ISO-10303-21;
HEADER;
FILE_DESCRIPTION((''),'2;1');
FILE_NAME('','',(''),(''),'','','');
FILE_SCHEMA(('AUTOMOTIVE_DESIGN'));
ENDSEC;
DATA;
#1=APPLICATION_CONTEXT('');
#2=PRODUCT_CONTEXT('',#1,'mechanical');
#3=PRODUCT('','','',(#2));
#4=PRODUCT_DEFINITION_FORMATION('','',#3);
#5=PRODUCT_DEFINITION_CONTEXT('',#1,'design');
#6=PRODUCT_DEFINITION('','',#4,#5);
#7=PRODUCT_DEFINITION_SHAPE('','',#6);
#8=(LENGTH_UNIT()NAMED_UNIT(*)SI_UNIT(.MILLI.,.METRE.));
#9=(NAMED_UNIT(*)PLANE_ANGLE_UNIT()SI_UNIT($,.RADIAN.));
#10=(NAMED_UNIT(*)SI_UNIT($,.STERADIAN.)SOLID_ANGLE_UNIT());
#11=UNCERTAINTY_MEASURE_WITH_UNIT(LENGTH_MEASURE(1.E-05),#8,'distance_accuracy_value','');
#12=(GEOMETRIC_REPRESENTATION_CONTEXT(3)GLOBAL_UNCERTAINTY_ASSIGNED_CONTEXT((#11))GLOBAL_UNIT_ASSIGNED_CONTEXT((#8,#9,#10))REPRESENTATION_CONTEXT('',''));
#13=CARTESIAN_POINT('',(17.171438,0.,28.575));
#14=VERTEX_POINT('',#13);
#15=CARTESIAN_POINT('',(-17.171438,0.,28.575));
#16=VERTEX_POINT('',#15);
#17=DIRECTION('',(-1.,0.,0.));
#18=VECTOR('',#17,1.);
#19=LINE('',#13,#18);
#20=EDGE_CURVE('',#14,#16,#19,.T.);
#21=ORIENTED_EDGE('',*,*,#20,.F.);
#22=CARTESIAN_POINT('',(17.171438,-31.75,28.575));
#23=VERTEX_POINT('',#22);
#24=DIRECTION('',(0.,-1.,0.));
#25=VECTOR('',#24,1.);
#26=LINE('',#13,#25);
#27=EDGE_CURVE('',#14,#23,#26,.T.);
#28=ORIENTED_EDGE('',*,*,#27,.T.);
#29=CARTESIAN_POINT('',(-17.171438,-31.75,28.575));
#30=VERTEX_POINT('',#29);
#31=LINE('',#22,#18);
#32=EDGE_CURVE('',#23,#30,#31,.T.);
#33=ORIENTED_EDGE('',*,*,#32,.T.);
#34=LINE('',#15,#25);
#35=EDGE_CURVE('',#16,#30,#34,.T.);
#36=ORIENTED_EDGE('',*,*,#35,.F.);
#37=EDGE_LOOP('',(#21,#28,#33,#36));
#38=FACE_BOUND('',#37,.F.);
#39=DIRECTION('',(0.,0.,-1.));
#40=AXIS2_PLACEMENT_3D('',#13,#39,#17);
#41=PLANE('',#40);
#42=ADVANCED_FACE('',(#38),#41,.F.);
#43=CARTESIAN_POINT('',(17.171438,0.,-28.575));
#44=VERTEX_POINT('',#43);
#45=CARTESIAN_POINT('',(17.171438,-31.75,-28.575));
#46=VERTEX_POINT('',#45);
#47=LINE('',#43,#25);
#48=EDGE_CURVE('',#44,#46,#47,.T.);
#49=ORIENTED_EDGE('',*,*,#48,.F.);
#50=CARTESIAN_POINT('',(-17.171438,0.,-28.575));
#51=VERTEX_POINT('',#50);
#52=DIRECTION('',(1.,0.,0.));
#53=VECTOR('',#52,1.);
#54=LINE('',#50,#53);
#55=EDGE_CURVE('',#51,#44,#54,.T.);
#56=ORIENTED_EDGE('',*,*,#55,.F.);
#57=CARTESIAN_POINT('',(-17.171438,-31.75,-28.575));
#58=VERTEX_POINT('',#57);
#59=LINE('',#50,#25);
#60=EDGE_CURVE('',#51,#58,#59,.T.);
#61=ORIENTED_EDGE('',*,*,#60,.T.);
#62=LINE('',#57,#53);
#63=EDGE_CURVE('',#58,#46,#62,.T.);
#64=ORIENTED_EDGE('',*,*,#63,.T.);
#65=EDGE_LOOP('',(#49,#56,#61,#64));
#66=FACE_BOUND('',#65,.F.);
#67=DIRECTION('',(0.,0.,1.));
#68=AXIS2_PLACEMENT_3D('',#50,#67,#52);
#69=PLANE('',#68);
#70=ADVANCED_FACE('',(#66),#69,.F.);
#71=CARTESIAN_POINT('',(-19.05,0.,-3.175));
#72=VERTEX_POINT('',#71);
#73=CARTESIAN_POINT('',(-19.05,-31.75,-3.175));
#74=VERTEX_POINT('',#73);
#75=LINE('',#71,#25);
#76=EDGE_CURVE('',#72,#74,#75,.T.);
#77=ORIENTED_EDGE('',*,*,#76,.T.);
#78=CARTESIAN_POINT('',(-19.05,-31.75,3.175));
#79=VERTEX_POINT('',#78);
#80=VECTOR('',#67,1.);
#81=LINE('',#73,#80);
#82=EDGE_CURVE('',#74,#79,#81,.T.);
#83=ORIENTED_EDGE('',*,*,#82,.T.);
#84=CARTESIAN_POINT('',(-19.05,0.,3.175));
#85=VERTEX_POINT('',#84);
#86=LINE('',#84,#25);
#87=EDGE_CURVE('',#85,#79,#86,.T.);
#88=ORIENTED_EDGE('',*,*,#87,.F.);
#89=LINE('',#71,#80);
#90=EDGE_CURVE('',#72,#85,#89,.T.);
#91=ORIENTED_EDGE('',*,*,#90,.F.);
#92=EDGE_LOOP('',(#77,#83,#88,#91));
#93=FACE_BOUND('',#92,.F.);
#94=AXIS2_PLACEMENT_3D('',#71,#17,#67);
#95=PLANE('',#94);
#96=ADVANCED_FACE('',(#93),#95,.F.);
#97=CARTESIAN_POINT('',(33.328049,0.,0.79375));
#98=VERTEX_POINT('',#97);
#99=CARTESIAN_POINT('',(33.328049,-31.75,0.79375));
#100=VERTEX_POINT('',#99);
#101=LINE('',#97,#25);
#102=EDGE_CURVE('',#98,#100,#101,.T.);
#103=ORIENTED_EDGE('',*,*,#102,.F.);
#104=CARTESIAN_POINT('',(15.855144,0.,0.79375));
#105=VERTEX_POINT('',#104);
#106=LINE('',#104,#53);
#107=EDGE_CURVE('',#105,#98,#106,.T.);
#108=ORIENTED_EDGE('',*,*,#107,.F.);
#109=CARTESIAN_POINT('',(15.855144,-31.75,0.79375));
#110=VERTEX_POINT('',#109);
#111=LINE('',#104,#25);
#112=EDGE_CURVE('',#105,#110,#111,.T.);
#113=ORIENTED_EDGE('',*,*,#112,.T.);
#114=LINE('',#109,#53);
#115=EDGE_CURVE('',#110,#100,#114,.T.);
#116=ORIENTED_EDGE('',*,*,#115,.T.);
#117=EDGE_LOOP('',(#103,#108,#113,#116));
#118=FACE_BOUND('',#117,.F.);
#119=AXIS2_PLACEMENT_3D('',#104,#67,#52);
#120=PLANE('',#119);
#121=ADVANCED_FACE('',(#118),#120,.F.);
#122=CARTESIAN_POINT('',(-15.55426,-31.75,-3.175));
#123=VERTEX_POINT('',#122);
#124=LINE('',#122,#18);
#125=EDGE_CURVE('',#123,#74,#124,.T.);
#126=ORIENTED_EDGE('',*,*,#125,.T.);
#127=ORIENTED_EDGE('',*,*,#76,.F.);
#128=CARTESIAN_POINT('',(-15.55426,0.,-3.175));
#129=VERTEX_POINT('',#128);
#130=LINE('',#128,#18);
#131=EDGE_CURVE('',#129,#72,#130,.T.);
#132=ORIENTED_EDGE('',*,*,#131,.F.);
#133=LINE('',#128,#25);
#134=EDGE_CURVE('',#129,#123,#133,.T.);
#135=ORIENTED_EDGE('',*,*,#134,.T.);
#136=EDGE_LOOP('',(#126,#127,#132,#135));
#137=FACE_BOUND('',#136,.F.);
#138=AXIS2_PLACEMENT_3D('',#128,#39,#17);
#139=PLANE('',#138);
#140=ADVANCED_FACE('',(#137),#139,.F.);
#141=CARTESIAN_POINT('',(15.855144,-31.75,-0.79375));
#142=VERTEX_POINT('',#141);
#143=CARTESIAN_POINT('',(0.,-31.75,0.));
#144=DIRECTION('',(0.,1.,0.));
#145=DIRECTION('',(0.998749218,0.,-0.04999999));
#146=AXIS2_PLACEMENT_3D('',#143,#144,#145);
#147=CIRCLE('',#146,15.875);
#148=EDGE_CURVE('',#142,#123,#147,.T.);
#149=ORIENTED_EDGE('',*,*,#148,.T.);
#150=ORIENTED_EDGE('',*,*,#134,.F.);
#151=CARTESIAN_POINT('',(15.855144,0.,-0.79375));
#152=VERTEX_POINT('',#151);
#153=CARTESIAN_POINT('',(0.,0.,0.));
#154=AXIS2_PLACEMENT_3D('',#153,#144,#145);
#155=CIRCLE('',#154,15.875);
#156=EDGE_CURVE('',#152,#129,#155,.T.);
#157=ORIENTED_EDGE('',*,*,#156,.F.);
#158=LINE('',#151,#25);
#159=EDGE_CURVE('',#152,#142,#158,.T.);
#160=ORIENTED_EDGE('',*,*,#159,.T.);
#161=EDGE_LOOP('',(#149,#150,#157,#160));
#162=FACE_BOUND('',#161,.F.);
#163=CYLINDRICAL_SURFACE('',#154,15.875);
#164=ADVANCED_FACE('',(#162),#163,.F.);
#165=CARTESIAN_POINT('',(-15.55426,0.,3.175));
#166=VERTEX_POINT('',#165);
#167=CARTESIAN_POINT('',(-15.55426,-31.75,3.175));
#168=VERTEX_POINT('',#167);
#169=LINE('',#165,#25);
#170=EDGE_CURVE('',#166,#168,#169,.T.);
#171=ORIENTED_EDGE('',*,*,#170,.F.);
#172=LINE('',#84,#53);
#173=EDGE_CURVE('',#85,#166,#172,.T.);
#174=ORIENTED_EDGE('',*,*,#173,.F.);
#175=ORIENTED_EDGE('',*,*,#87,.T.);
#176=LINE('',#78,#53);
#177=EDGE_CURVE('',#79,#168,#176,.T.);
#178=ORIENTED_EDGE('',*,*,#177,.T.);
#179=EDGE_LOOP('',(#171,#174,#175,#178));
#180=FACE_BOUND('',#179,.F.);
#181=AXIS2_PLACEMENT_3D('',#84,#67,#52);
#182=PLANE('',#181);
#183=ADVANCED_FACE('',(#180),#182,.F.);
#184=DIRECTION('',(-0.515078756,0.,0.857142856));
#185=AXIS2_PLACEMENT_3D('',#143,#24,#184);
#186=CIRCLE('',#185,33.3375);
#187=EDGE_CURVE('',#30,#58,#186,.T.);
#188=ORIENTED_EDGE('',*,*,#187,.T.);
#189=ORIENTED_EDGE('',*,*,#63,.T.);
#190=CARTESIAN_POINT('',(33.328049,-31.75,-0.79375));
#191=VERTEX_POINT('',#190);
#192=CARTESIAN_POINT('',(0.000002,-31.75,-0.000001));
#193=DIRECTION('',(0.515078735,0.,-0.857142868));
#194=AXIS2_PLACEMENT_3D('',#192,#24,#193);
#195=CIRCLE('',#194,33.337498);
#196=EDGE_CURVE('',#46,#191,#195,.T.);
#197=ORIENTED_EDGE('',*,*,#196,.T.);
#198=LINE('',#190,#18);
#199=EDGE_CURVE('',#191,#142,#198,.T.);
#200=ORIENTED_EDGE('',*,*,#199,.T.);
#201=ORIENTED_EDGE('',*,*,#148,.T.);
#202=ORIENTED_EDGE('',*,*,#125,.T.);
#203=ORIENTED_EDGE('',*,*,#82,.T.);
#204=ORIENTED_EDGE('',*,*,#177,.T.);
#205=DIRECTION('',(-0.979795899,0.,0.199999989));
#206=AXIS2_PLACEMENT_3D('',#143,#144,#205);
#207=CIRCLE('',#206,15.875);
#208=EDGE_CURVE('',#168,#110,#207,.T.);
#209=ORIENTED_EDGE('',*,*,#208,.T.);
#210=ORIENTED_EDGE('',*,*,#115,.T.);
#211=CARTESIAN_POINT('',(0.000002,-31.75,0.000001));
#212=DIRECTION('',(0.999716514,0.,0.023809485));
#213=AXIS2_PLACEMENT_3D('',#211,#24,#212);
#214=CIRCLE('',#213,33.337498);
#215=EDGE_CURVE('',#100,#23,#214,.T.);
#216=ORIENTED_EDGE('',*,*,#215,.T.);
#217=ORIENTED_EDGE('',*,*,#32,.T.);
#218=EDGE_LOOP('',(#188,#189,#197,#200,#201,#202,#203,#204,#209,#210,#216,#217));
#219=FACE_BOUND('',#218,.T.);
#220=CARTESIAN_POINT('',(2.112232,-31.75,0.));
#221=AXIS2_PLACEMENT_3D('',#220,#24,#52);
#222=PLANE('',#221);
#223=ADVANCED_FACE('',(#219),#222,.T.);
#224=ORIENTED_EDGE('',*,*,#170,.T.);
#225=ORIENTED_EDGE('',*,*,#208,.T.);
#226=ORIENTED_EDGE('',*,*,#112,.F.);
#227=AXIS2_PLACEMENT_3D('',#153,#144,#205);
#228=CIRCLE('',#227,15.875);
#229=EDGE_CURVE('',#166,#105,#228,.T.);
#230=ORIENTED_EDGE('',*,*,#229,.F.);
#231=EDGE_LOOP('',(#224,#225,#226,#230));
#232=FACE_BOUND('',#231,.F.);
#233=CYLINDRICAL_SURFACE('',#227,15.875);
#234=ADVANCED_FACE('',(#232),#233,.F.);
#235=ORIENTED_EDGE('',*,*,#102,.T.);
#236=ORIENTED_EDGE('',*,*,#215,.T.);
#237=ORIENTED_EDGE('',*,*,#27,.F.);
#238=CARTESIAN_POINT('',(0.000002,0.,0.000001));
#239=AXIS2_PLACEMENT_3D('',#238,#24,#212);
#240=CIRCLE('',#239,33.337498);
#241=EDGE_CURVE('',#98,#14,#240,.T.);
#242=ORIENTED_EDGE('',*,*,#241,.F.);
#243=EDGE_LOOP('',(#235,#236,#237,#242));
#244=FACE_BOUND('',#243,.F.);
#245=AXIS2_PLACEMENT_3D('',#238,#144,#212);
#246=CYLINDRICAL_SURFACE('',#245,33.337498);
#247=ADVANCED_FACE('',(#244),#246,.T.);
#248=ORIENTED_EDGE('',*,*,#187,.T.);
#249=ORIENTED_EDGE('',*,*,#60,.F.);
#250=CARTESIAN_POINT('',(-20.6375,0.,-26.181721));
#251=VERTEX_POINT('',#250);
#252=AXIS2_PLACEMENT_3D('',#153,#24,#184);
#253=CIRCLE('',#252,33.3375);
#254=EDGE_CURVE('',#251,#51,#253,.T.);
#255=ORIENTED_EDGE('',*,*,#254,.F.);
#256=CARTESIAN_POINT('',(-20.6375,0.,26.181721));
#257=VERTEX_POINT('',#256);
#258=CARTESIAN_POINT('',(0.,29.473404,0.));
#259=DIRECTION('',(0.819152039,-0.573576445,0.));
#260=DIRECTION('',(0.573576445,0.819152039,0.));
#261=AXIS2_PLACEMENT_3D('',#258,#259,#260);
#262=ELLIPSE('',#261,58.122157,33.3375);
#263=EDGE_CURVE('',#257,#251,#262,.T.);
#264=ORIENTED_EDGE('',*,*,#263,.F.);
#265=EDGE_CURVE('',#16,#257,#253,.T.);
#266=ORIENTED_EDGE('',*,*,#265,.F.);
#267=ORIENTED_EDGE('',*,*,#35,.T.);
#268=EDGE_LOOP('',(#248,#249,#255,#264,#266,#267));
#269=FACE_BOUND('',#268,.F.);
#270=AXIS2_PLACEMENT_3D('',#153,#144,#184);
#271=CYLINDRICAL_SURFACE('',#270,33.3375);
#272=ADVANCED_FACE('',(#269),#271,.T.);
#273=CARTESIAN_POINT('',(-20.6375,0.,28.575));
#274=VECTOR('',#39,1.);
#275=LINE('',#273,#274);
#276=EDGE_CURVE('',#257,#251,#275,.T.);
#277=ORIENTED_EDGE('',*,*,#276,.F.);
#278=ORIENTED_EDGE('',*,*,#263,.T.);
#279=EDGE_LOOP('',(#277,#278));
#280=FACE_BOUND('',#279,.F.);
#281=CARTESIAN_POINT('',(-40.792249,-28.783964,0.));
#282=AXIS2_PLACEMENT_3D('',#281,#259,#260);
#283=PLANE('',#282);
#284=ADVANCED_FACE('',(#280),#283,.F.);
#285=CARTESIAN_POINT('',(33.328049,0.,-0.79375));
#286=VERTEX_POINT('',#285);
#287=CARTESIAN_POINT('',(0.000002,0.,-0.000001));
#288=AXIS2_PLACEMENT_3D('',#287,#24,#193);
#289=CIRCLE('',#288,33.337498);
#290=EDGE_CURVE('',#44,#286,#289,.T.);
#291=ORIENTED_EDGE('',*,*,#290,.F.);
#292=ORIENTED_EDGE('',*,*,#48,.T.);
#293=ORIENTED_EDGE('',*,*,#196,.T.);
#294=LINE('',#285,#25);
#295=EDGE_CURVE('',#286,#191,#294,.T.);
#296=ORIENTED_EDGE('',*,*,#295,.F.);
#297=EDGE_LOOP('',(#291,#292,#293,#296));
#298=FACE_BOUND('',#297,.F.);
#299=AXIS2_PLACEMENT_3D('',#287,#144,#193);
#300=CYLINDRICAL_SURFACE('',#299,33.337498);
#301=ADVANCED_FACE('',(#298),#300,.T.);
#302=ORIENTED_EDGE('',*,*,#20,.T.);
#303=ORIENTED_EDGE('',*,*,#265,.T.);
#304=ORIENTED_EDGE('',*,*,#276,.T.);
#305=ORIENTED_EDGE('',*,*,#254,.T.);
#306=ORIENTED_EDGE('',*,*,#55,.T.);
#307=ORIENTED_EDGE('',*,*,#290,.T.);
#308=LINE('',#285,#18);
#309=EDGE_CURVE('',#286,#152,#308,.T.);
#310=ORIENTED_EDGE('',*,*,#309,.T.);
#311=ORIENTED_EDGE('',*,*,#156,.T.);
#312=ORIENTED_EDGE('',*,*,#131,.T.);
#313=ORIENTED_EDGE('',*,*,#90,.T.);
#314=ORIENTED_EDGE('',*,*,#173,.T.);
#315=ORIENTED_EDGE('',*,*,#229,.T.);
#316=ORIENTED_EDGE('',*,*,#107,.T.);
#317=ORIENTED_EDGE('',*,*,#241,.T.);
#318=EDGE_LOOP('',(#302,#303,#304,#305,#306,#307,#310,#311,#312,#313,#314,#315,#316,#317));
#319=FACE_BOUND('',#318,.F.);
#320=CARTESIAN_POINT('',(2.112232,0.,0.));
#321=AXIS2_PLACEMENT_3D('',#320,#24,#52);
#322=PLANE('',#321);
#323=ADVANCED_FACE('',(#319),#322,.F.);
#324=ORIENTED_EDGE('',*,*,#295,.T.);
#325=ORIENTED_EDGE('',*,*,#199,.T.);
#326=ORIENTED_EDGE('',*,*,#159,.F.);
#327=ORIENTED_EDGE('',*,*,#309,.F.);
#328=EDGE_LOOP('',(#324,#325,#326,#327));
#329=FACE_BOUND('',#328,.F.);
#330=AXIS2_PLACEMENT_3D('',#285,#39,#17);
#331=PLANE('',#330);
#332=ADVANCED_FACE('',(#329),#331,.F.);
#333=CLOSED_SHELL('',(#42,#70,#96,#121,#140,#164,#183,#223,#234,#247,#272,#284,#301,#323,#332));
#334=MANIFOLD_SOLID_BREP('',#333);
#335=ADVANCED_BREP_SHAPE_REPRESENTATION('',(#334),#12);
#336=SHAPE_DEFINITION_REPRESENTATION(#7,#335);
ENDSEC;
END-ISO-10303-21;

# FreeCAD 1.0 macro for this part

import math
import FreeCAD as App
import Part
import Sketcher

V = App.Vector
Q = App.Units.Quantity

doc = App.newDocument("Part")
body = doc.addObject("PartDesign::Body", "Body")

sketch1 = body.newObject("Sketcher::SketchObject", "Sketch")
sketch1.AttachmentSupport = (doc.getObject("XZ_Plane"), [""])
sketch1.MapMode = "FlatFace"
sketch1.addGeometry([
    Part.LineSegment(V(15.9, 0.8, 0), V(33.3, 0.8, 0)),
    Part.ArcOfCircle(Part.Circle(V(0, 0, 0), V(0, 0, 1), 33.3), math.radians(1), math.radians(59)),
    Part.LineSegment(V(17.2, 28.6, 0), V(-17.2, 28.6, 0)),
    Part.ArcOfCircle(Part.Circle(V(0, 0, 0), V(0, 0, 1), 33.3), math.radians(121), math.radians(239)),
    Part.LineSegment(V(-17.2, -28.6, 0), V(17.2, -28.6, 0)),
    Part.ArcOfCircle(Part.Circle(V(0, 0, 0), V(0, 0, 1), 33.3), math.radians(-59), math.radians(-1)),
    Part.LineSegment(V(33.3, -0.8, 0), V(15.9, -0.8, 0)),
    Part.ArcOfCircle(Part.Circle(V(0, 0, 0), V(0, 0, 1), 15.9), math.radians(-168), math.radians(-3)),
    Part.LineSegment(V(-15.6, -3.2, 0), V(-19.1, -3.2, 0)),
    Part.LineSegment(V(-19.1, -3.2, 0), V(-19.1, 3.2, 0)),
    Part.LineSegment(V(-19.1, 3.2, 0), V(-15.6, 3.2, 0)),
    Part.ArcOfCircle(Part.Circle(V(0, 0, 0), V(0, 0, 1), 15.9), math.radians(3), math.radians(168)),
], False)
sketch1.addConstraint([
    Sketcher.Constraint("Coincident", 0, 2, 1, 1),
    Sketcher.Constraint("Coincident", 1, 2, 2, 1),
    Sketcher.Constraint("Coincident", 2, 2, 3, 1),
    Sketcher.Constraint("Coincident", 3, 2, 4, 1),
    Sketcher.Constraint("Coincident", 4, 2, 5, 1),
    Sketcher.Constraint("Coincident", 5, 2, 6, 1),
    Sketcher.Constraint("Coincident", 6, 2, 7, 2),
    Sketcher.Constraint("Coincident", 7, 1, 8, 1),
    Sketcher.Constraint("Coincident", 8, 2, 9, 1),
    Sketcher.Constraint("Coincident", 9, 2, 10, 1),
    Sketcher.Constraint("Coincident", 10, 2, 11, 2),
    Sketcher.Constraint("Coincident", 11, 1, 0, 1),
    Sketcher.Constraint("Horizontal", 0),
    Sketcher.Constraint("Horizontal", 2),
    Sketcher.Constraint("Horizontal", 4),
    Sketcher.Constraint("Horizontal", 6),
    Sketcher.Constraint("Horizontal", 8),
    Sketcher.Constraint("Vertical", 9),
    Sketcher.Constraint("Horizontal", 10),
    Sketcher.Constraint("Coincident", 1, 3, -1, 1),
    Sketcher.Constraint("Coincident", 3, 3, -1, 1),
    Sketcher.Constraint("Coincident", 5, 3, -1, 1),
    Sketcher.Constraint("Coincident", 7, 3, -1, 1),
    Sketcher.Constraint("Coincident", 11, 3, -1, 1),
    Sketcher.Constraint("Equal", 1, 5),
    Sketcher.Constraint("Equal", 7, 11),
    Sketcher.Constraint("Symmetric", 1, 2, 3, 2, -1, 1),
    Sketcher.Constraint("Vertical", 0, 2, 5, 2),
    Sketcher.Constraint("Vertical", 7, 1, 10, 2),
    Sketcher.Constraint("Radius", 1, Q("1.3124999 in")),
    Sketcher.Constraint("Radius", 7, Q("0.625 in")),
    Sketcher.Constraint("DistanceY", 9, 1, 9, 2, Q("0.25 in")),
    Sketcher.Constraint("DistanceX", 8, 2, -1, 1, Q("0.75 in")),
    Sketcher.Constraint("DistanceY", -1, 1, 0, 2, Q("0.03125 in")),
    Sketcher.Constraint("DistanceY", -1, 1, 1, 2, Q("1.125 in")),
])
pad1 = body.newObject("PartDesign::Pad", "Pad")
pad1.Profile = sketch1
pad1.Length = Q("1.25 in")

sketch2 = body.newObject("Sketcher::SketchObject", "Sketch001")
sketch2.AttachmentSupport = (doc.getObject("XY_Plane"), [""])
sketch2.MapMode = "FlatFace"
sketch2.addGeometry([
    Part.LineSegment(V(-20.6, 0, 0), V(-20.6, 6.5, 0)),
    Part.LineSegment(V(-20.6, 6.5, 0), V(-46.3, 6.5, 0)),
    Part.LineSegment(V(-46.3, 6.5, 0), V(-45.4, -28.8, 0)),
    Part.LineSegment(V(-45.4, -28.8, 0), V(-40.8, -28.8, 0)),
    Part.LineSegment(V(-40.8, -28.8, 0), V(-20.6, 0, 0)),
], False)
sketch2.addConstraint([
    Sketcher.Constraint("Coincident", 0, 2, 1, 1),
    Sketcher.Constraint("Coincident", 1, 2, 2, 1),
    Sketcher.Constraint("Coincident", 2, 2, 3, 1),
    Sketcher.Constraint("Coincident", 3, 2, 4, 1),
    Sketcher.Constraint("Coincident", 4, 2, 0, 1),
    Sketcher.Constraint("Vertical", 0),
    Sketcher.Constraint("Horizontal", 1),
    Sketcher.Constraint("Horizontal", 3),
    Sketcher.Constraint("PointOnObject", 4, 2, -1),
    Sketcher.Constraint("Angle", 4, Q("54.999999 deg")),
    Sketcher.Constraint("DistanceX", 0, 2, -1, 1, Q("0.8125 in")),
    Sketcher.Constraint("Distance", 2, 35.282),
    Sketcher.Constraint("DistanceX", 1, 2, 1, 1, 25.701274),
    Sketcher.Constraint("DistanceX", 3, 1, 3, 2, 4.564483),
    Sketcher.Constraint("DistanceY", 0, 1, 0, 2, 6.484366),
])
pocket1 = body.newObject("PartDesign::Pocket", "Pocket")
pocket1.Profile = sketch2
pocket1.Length = Q("2.25 in")
pocket1.Midplane = True

doc.recompute()
